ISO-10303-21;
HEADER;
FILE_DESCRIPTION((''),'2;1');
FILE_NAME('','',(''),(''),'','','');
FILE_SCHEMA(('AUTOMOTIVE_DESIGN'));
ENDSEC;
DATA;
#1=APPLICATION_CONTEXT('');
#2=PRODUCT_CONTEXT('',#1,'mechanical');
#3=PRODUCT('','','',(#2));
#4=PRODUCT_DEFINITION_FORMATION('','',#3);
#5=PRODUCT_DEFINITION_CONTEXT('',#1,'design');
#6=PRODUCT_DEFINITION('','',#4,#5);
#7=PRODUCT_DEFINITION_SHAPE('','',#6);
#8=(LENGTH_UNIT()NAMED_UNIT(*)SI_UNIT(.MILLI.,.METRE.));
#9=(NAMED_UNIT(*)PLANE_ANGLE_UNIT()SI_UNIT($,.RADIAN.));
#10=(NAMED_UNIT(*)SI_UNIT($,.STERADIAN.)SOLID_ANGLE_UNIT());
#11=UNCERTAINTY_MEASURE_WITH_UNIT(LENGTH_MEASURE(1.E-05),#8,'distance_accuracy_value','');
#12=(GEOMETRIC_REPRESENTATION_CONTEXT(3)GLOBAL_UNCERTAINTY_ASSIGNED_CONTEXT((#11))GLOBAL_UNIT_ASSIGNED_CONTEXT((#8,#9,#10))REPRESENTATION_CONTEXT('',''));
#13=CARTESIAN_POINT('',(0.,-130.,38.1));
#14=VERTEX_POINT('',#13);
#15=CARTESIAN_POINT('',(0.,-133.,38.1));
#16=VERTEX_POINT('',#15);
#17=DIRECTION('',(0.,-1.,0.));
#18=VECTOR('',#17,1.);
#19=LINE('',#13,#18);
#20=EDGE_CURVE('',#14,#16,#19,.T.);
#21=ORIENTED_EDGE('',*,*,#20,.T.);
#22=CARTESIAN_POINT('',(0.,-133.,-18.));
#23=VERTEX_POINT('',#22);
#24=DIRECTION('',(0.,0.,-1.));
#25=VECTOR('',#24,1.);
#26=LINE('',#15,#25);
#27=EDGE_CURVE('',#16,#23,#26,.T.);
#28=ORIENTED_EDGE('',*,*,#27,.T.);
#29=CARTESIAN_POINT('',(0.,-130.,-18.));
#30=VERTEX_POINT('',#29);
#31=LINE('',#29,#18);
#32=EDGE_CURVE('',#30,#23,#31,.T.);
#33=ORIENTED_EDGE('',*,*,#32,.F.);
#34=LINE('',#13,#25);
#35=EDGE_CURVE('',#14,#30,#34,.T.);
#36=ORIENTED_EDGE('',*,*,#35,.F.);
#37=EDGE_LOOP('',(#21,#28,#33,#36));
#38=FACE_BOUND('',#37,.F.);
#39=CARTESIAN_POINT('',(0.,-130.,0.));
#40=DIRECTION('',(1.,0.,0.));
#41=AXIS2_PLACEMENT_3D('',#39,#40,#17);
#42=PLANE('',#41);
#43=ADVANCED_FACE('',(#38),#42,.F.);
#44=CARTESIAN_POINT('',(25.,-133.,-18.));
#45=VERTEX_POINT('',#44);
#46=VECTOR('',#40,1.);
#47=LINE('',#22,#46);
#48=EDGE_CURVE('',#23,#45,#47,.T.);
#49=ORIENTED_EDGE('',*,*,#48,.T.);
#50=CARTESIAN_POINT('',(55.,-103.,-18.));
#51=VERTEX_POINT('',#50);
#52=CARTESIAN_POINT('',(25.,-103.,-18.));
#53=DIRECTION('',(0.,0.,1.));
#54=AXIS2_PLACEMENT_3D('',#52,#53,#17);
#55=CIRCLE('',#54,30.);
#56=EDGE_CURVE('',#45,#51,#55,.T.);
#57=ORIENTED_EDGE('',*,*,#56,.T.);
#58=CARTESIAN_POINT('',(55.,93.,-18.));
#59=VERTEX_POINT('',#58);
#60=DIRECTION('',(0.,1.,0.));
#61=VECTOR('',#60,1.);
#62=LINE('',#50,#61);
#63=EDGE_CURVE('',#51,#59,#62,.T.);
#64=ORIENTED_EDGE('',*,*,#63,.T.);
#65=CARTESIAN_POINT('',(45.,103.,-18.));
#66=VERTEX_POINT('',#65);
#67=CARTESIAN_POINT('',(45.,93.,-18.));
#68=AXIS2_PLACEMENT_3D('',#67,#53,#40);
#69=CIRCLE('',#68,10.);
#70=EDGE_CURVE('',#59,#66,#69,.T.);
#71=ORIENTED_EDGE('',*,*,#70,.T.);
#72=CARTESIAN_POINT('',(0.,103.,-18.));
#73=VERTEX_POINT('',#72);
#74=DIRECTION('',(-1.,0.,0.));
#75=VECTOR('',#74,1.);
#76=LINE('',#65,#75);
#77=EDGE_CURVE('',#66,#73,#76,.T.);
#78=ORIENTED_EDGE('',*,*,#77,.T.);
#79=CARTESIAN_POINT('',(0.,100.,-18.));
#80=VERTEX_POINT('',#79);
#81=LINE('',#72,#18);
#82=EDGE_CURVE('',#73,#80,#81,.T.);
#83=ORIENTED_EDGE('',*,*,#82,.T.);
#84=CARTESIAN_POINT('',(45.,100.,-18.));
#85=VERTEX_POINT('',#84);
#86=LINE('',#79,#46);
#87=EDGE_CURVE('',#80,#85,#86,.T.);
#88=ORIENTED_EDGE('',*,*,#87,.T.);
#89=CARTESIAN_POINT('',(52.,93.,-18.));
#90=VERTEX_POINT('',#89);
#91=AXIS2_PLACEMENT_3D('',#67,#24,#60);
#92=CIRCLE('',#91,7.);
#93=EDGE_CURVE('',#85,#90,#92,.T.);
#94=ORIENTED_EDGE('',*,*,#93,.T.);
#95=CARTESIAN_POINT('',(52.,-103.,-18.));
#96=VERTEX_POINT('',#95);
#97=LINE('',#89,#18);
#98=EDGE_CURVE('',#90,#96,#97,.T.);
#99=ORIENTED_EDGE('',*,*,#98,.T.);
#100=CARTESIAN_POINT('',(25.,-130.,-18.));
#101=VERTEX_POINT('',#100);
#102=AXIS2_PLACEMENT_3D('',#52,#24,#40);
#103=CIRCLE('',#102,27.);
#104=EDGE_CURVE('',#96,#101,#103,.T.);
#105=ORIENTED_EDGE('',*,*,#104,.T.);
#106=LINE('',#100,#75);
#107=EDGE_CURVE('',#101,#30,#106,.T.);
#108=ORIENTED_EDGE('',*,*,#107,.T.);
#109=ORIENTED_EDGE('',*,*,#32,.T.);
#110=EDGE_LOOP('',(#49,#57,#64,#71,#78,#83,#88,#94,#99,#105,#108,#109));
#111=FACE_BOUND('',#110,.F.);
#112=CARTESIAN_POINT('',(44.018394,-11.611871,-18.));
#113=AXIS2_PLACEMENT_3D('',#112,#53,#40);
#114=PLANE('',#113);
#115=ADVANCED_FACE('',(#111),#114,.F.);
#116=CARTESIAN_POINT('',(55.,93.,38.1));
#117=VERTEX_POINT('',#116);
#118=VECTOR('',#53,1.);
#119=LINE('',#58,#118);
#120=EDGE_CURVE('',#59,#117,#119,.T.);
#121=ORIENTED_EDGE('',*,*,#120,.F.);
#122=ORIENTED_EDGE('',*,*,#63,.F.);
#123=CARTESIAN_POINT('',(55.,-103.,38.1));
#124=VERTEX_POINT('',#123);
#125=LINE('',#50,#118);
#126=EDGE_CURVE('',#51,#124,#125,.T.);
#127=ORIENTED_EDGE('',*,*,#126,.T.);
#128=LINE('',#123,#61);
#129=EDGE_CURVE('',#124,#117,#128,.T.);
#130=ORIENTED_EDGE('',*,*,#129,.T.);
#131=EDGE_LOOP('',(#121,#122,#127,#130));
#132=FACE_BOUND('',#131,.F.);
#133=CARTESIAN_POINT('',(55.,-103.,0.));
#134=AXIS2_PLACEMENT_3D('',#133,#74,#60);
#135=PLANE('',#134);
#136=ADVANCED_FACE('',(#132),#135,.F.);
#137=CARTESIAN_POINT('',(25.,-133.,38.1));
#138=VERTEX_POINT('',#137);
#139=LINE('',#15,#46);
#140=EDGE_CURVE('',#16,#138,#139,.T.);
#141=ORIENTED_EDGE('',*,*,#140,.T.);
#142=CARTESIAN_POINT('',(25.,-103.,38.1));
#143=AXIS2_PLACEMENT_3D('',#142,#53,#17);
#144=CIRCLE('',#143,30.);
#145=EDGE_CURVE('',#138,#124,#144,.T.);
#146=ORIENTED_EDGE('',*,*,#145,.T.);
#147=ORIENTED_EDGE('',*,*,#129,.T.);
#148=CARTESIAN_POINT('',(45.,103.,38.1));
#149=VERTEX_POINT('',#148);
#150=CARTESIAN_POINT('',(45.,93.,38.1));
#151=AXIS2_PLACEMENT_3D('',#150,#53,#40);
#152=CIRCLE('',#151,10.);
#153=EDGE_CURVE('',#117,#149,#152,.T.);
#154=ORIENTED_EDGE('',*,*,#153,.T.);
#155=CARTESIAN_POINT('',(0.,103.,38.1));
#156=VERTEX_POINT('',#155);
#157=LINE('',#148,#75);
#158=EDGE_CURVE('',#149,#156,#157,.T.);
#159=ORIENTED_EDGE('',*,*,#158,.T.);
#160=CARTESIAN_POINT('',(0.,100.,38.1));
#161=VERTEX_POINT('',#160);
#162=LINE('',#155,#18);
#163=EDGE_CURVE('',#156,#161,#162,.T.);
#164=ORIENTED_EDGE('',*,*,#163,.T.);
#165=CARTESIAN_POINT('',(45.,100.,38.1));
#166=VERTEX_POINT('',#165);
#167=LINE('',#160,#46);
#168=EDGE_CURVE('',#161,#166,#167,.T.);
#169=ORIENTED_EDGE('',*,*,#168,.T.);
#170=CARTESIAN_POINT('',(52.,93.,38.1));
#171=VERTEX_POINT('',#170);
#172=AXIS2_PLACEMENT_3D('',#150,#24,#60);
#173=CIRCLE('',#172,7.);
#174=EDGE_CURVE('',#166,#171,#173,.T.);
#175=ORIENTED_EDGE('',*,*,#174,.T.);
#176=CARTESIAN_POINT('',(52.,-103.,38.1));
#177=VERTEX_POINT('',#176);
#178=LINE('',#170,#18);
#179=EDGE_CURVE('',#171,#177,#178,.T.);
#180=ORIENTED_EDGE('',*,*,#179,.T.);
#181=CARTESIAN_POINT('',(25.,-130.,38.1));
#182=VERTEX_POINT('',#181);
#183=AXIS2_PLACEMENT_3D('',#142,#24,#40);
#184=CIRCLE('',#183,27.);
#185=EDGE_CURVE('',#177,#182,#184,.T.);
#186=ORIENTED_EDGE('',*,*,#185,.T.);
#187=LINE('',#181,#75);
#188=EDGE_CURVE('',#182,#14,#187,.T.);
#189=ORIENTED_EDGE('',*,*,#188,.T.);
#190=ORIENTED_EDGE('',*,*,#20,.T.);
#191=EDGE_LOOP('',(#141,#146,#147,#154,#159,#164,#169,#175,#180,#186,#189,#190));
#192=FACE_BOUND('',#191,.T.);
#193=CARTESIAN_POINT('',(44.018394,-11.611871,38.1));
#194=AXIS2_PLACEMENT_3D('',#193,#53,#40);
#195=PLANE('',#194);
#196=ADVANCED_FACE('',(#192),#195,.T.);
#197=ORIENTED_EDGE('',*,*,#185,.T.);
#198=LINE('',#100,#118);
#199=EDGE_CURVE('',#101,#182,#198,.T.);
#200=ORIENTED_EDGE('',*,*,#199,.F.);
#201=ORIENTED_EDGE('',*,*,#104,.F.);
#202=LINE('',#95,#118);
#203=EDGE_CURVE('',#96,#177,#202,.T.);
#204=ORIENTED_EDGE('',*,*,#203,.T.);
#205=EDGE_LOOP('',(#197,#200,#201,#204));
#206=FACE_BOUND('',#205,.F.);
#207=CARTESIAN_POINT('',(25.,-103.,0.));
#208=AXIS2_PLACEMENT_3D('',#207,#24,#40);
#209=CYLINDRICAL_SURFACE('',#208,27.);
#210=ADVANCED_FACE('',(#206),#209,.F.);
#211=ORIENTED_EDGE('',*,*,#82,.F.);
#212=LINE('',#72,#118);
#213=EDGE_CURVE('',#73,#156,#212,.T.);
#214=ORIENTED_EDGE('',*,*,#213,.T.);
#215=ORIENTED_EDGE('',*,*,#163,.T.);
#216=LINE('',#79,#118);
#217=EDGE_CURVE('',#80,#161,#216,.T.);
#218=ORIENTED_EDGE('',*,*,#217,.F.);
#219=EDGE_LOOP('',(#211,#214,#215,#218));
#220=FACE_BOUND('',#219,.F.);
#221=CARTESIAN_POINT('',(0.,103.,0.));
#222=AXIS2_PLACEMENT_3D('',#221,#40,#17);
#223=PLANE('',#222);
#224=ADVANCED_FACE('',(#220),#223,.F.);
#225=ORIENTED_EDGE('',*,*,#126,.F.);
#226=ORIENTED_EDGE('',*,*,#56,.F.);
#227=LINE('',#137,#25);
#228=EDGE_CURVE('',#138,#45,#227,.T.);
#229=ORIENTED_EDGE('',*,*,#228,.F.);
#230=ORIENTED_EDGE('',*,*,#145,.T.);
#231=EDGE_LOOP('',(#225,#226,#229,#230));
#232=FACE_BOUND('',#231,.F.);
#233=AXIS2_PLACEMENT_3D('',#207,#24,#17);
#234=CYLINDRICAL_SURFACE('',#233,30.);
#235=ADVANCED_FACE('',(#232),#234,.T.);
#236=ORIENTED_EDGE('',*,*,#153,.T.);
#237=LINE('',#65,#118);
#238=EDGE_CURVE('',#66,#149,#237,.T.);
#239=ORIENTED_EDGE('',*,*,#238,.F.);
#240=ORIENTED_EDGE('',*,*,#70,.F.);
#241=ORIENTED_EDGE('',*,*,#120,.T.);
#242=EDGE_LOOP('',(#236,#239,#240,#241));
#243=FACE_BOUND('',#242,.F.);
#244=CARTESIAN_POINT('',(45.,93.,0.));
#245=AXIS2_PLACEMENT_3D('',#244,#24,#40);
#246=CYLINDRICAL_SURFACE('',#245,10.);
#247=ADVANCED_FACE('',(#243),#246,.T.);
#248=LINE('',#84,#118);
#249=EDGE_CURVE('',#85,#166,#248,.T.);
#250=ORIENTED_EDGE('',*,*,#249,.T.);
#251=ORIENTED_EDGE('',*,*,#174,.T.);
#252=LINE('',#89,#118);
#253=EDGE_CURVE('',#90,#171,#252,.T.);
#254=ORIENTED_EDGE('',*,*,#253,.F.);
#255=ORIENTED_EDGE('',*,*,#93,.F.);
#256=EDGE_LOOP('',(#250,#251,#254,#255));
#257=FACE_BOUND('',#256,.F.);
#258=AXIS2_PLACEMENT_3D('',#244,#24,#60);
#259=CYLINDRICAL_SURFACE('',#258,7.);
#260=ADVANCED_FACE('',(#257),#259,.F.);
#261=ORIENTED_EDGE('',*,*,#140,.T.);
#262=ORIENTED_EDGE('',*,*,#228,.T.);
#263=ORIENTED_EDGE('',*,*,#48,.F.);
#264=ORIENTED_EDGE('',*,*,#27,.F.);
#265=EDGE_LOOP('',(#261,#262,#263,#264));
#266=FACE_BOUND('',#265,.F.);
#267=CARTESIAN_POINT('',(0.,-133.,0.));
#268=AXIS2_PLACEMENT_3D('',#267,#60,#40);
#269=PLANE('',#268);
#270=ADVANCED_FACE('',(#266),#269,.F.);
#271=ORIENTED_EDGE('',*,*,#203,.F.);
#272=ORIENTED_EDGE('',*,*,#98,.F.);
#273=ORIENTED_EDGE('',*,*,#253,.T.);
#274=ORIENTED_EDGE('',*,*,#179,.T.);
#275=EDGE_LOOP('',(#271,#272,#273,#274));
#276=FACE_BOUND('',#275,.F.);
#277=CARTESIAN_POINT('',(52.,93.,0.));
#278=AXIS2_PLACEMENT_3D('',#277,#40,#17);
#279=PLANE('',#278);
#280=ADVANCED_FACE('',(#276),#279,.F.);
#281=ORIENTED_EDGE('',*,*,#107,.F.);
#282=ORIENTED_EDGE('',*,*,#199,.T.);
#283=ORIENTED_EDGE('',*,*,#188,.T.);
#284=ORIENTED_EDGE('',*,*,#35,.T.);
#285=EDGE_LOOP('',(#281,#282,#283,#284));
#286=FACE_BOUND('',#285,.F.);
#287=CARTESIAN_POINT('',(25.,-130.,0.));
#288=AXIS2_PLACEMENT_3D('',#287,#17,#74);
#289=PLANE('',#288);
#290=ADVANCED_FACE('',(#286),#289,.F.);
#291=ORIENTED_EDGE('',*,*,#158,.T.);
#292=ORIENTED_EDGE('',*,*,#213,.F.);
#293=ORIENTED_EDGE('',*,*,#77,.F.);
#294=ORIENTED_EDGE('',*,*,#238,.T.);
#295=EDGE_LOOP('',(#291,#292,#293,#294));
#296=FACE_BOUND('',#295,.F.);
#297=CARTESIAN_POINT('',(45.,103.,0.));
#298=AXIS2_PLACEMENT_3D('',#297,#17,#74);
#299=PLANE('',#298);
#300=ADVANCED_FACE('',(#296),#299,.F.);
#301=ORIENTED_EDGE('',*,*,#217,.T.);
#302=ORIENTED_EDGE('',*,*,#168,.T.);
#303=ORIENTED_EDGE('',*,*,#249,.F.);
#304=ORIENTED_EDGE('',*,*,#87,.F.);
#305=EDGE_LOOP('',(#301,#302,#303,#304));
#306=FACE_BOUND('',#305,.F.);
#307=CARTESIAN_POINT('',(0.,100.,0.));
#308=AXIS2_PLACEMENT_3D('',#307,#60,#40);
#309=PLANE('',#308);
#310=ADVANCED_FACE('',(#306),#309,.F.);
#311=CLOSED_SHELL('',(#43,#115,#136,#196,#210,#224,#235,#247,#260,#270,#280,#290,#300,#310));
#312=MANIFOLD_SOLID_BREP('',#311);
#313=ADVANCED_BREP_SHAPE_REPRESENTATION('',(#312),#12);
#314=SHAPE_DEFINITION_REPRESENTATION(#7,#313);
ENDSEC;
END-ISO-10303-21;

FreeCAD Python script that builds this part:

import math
import FreeCAD as App
import Part
import Sketcher

doc = App.newDocument("Part")
body = doc.addObject("PartDesign::Body", "Body")

# Sketch on XY plane
sketch1 = body.newObject("Sketcher::SketchObject", "Sketch")
sketch1.AttachmentSupport = (doc.getObject("XY_Plane"), [""])
sketch1.MapMode = "FlatFace"
sketch1.addGeometry([
    Part.ArcOfCircle(Part.Circle(App.Vector(25, -103, 0), App.Vector(0, 0, 1), 30), math.radians(-90), math.radians(0)),  # 0
    Part.LineSegment(App.Vector(55, -103, 0), App.Vector(55, 93, 0)),  # 1
    Part.ArcOfCircle(Part.Circle(App.Vector(45, 93, 0), App.Vector(0, 0, 1), 10), math.radians(0), math.radians(90)),  # 2
    Part.LineSegment(App.Vector(45, 103, 0), App.Vector(0, 103, 0)),  # 3
    Part.LineSegment(App.Vector(0, 103, 0), App.Vector(0, 100, 0)),  # 4
    Part.LineSegment(App.Vector(0, 100, 0), App.Vector(45, 100, 0)),  # 5
    Part.ArcOfCircle(Part.Circle(App.Vector(45, 93, 0), App.Vector(0, 0, 1), 7), math.radians(0), math.radians(90)),  # 6
    Part.LineSegment(App.Vector(52, 93, 0), App.Vector(52, -103, 0)),  # 7
    Part.ArcOfCircle(Part.Circle(App.Vector(25, -103, 0), App.Vector(0, 0, 1), 27), math.radians(-90), math.radians(0)),  # 8
    Part.LineSegment(App.Vector(25, -130, 0), App.Vector(0, -130, 0)),  # 9
    Part.LineSegment(App.Vector(0, -130, 0), App.Vector(0, -133, 0)),  # 10
    Part.LineSegment(App.Vector(0, -133, 0), App.Vector(25, -133, 0)),  # 11
], False)
sketch1.addConstraint([
    Sketcher.Constraint("Tangent", 0, 2, 1, 1),
    Sketcher.Constraint("Tangent", 1, 2, 2, 1),
    Sketcher.Constraint("Tangent", 2, 2, 3, 1),
    Sketcher.Constraint("Coincident", 3, 2, 4, 1),
    Sketcher.Constraint("Coincident", 4, 2, 5, 1),
    Sketcher.Constraint("Tangent", 5, 2, 6, 2),
    Sketcher.Constraint("Tangent", 6, 1, 7, 1),
    Sketcher.Constraint("Tangent", 7, 2, 8, 2),
    Sketcher.Constraint("Tangent", 8, 1, 9, 1),
    Sketcher.Constraint("Coincident", 9, 2, 10, 1),
    Sketcher.Constraint("Coincident", 10, 2, 11, 1),
    Sketcher.Constraint("Tangent", 11, 2, 0, 1),
    Sketcher.Constraint("Vertical", 1),
    Sketcher.Constraint("Horizontal", 3),
    Sketcher.Constraint("Vertical", 4),
    Sketcher.Constraint("Horizontal", 5),
    Sketcher.Constraint("Vertical", 7),
    Sketcher.Constraint("Horizontal", 9),
    Sketcher.Constraint("Vertical", 10),
    Sketcher.Constraint("Horizontal", 11),
    Sketcher.Constraint("Coincident", 6, 3, 2, 3),
    Sketcher.Constraint("Coincident", 8, 3, 0, 3),
    Sketcher.Constraint("PointOnObject", 3, 2, -2),
    Sketcher.Constraint("PointOnObject", 9, 2, -2),
    Sketcher.Constraint("Radius", 0, 30.0),
    Sketcher.Constraint("Radius", 2, 10.0),
    Sketcher.Constraint("Radius", 6, 7.0),
    Sketcher.Constraint("DistanceX", 3, 2, 3, 1, 45.0),
    Sketcher.Constraint("DistanceY", 1, 1, 1, 2, 196.0),
    Sketcher.Constraint("DistanceY", 0, 3, -1, 1, 103.0),
])
pad1 = body.newObject("PartDesign::Pad", "Pad")
pad1.Profile = sketch1
pad1.Type = "TwoLengths"
pad1.Length = 18
pad1.Length2 = 38.1
pad1.Reversed = True

doc.recompute()
